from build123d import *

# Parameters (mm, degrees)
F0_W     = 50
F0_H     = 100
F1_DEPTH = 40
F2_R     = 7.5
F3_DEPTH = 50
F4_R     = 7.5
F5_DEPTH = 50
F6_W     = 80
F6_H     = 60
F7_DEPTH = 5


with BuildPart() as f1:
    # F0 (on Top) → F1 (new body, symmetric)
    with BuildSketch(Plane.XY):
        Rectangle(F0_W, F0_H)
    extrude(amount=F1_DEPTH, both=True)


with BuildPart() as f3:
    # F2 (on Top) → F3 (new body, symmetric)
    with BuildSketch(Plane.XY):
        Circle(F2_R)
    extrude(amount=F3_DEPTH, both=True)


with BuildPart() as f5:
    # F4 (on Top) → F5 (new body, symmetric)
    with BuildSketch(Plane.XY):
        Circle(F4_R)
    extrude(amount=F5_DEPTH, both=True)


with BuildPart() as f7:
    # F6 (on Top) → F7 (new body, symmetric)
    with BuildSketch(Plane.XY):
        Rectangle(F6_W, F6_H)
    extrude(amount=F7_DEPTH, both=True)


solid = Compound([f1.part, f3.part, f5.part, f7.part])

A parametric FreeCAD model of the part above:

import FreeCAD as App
import Part
import Sketcher
Q = App.Units.Quantity

doc = App.newDocument("Part")
body = doc.addObject("PartDesign::Body", "Body")

# Sketch on XY plane
sketch1 = doc.addObject("Sketcher::SketchObject", "Sketch")
body.addObject(sketch1)
sketch1.AttachmentSupport = (doc.XY_Plane, [""])
sketch1.MapMode = "FlatFace"
sketch1.addGeometry(Part.LineSegment(App.Vector(-25, 50, 0), App.Vector(-25, -50, 0)), False)
sketch1.addGeometry(Part.LineSegment(App.Vector(-25, -50, 0), App.Vector(25, -50, 0)), False)
sketch1.addGeometry(Part.LineSegment(App.Vector(25, -50, 0), App.Vector(25, 50, 0)), False)
sketch1.addGeometry(Part.LineSegment(App.Vector(25, 50, 0), App.Vector(-25, 50, 0)), False)
sketch1.addConstraint(Sketcher.Constraint("Coincident", 0, 2, 1, 1))
sketch1.addConstraint(Sketcher.Constraint("Coincident", 1, 2, 2, 1))
sketch1.addConstraint(Sketcher.Constraint("Coincident", 2, 2, 3, 1))
sketch1.addConstraint(Sketcher.Constraint("Coincident", 3, 2, 0, 1))
sketch1.addConstraint(Sketcher.Constraint("Vertical", 0))
sketch1.addConstraint(Sketcher.Constraint("Horizontal", 1))
sketch1.addConstraint(Sketcher.Constraint("Vertical", 2))
sketch1.addConstraint(Sketcher.Constraint("Horizontal", 3))
sketch1.addConstraint(Sketcher.Constraint("Symmetric", 0, 2, 2, 2, -1, 1))
sketch1.addConstraint(Sketcher.Constraint("DistanceX", 1, 1, 1, 2, Q("50 mm")))
sketch1.addConstraint(Sketcher.Constraint("DistanceY", 0, 2, 0, 1, Q("100 mm")))
pad1 = doc.addObject("PartDesign::Pad", "Pad")
body.addObject(pad1)
pad1.Profile = sketch1
pad1.Length = 80
pad1.Midplane = True
body2 = doc.addObject("PartDesign::Body", "Body001")

# Sketch on XY plane
sketch2 = doc.addObject("Sketcher::SketchObject", "Sketch001")
body2.addObject(sketch2)
sketch2.AttachmentSupport = (doc.getObject("XY_Plane001"), [""])
sketch2.MapMode = "FlatFace"
sketch2.addGeometry(Part.Circle(App.Vector(0, 0, 0), App.Vector(0, 0, 1), 7.5), False)
sketch2.addConstraint(Sketcher.Constraint("Coincident", 0, 3, -1, 1))
sketch2.addConstraint(Sketcher.Constraint("Diameter", 0, Q("15 mm")))
pad2 = doc.addObject("PartDesign::Pad", "Pad001")
body2.addObject(pad2)
pad2.Profile = sketch2
pad2.Length = 100
pad2.Midplane = True
body3 = doc.addObject("PartDesign::Body", "Body002")

# Sketch on XY plane
sketch3 = doc.addObject("Sketcher::SketchObject", "Sketch002")
body3.addObject(sketch3)
sketch3.AttachmentSupport = (doc.getObject("XY_Plane002"), [""])
sketch3.MapMode = "FlatFace"
sketch3.addGeometry(Part.Circle(App.Vector(0, 0, 0), App.Vector(0, 0, 1), 7.5), False)
sketch3.addConstraint(Sketcher.Constraint("Coincident", 0, 3, -1, 1))
sketch3.addConstraint(Sketcher.Constraint("Diameter", 0, Q("15 mm")))
pad3 = doc.addObject("PartDesign::Pad", "Pad002")
body3.addObject(pad3)
pad3.Profile = sketch3
pad3.Length = 100
pad3.Midplane = True
body4 = doc.addObject("PartDesign::Body", "Body003")

# Sketch on XY plane
sketch4 = doc.addObject("Sketcher::SketchObject", "Sketch003")
body4.addObject(sketch4)
sketch4.AttachmentSupport = (doc.getObject("XY_Plane003"), [""])
sketch4.MapMode = "FlatFace"
sketch4.addGeometry(Part.LineSegment(App.Vector(-40, 30, 0), App.Vector(-40, -30, 0)), False)
sketch4.addGeometry(Part.LineSegment(App.Vector(-40, -30, 0), App.Vector(40, -30, 0)), False)
sketch4.addGeometry(Part.LineSegment(App.Vector(40, -30, 0), App.Vector(40, 30, 0)), False)
sketch4.addGeometry(Part.LineSegment(App.Vector(40, 30, 0), App.Vector(-40, 30, 0)), False)
sketch4.addConstraint(Sketcher.Constraint("Coincident", 0, 2, 1, 1))
sketch4.addConstraint(Sketcher.Constraint("Coincident", 1, 2, 2, 1))
sketch4.addConstraint(Sketcher.Constraint("Coincident", 2, 2, 3, 1))
sketch4.addConstraint(Sketcher.Constraint("Coincident", 3, 2, 0, 1))
sketch4.addConstraint(Sketcher.Constraint("Vertical", 0))
sketch4.addConstraint(Sketcher.Constraint("Horizontal", 1))
sketch4.addConstraint(Sketcher.Constraint("Vertical", 2))
sketch4.addConstraint(Sketcher.Constraint("Horizontal", 3))
sketch4.addConstraint(Sketcher.Constraint("Symmetric", 0, 2, 2, 2, -1, 1))
sketch4.addConstraint(Sketcher.Constraint("DistanceX", 1, 1, 1, 2, Q("80 mm")))
sketch4.addConstraint(Sketcher.Constraint("DistanceY", 0, 2, 0, 1, Q("60 mm")))
pad4 = doc.addObject("PartDesign::Pad", "Pad003")
body4.addObject(pad4)
pad4.Profile = sketch4
pad4.Length = 10
pad4.Midplane = True

doc.recompute()
